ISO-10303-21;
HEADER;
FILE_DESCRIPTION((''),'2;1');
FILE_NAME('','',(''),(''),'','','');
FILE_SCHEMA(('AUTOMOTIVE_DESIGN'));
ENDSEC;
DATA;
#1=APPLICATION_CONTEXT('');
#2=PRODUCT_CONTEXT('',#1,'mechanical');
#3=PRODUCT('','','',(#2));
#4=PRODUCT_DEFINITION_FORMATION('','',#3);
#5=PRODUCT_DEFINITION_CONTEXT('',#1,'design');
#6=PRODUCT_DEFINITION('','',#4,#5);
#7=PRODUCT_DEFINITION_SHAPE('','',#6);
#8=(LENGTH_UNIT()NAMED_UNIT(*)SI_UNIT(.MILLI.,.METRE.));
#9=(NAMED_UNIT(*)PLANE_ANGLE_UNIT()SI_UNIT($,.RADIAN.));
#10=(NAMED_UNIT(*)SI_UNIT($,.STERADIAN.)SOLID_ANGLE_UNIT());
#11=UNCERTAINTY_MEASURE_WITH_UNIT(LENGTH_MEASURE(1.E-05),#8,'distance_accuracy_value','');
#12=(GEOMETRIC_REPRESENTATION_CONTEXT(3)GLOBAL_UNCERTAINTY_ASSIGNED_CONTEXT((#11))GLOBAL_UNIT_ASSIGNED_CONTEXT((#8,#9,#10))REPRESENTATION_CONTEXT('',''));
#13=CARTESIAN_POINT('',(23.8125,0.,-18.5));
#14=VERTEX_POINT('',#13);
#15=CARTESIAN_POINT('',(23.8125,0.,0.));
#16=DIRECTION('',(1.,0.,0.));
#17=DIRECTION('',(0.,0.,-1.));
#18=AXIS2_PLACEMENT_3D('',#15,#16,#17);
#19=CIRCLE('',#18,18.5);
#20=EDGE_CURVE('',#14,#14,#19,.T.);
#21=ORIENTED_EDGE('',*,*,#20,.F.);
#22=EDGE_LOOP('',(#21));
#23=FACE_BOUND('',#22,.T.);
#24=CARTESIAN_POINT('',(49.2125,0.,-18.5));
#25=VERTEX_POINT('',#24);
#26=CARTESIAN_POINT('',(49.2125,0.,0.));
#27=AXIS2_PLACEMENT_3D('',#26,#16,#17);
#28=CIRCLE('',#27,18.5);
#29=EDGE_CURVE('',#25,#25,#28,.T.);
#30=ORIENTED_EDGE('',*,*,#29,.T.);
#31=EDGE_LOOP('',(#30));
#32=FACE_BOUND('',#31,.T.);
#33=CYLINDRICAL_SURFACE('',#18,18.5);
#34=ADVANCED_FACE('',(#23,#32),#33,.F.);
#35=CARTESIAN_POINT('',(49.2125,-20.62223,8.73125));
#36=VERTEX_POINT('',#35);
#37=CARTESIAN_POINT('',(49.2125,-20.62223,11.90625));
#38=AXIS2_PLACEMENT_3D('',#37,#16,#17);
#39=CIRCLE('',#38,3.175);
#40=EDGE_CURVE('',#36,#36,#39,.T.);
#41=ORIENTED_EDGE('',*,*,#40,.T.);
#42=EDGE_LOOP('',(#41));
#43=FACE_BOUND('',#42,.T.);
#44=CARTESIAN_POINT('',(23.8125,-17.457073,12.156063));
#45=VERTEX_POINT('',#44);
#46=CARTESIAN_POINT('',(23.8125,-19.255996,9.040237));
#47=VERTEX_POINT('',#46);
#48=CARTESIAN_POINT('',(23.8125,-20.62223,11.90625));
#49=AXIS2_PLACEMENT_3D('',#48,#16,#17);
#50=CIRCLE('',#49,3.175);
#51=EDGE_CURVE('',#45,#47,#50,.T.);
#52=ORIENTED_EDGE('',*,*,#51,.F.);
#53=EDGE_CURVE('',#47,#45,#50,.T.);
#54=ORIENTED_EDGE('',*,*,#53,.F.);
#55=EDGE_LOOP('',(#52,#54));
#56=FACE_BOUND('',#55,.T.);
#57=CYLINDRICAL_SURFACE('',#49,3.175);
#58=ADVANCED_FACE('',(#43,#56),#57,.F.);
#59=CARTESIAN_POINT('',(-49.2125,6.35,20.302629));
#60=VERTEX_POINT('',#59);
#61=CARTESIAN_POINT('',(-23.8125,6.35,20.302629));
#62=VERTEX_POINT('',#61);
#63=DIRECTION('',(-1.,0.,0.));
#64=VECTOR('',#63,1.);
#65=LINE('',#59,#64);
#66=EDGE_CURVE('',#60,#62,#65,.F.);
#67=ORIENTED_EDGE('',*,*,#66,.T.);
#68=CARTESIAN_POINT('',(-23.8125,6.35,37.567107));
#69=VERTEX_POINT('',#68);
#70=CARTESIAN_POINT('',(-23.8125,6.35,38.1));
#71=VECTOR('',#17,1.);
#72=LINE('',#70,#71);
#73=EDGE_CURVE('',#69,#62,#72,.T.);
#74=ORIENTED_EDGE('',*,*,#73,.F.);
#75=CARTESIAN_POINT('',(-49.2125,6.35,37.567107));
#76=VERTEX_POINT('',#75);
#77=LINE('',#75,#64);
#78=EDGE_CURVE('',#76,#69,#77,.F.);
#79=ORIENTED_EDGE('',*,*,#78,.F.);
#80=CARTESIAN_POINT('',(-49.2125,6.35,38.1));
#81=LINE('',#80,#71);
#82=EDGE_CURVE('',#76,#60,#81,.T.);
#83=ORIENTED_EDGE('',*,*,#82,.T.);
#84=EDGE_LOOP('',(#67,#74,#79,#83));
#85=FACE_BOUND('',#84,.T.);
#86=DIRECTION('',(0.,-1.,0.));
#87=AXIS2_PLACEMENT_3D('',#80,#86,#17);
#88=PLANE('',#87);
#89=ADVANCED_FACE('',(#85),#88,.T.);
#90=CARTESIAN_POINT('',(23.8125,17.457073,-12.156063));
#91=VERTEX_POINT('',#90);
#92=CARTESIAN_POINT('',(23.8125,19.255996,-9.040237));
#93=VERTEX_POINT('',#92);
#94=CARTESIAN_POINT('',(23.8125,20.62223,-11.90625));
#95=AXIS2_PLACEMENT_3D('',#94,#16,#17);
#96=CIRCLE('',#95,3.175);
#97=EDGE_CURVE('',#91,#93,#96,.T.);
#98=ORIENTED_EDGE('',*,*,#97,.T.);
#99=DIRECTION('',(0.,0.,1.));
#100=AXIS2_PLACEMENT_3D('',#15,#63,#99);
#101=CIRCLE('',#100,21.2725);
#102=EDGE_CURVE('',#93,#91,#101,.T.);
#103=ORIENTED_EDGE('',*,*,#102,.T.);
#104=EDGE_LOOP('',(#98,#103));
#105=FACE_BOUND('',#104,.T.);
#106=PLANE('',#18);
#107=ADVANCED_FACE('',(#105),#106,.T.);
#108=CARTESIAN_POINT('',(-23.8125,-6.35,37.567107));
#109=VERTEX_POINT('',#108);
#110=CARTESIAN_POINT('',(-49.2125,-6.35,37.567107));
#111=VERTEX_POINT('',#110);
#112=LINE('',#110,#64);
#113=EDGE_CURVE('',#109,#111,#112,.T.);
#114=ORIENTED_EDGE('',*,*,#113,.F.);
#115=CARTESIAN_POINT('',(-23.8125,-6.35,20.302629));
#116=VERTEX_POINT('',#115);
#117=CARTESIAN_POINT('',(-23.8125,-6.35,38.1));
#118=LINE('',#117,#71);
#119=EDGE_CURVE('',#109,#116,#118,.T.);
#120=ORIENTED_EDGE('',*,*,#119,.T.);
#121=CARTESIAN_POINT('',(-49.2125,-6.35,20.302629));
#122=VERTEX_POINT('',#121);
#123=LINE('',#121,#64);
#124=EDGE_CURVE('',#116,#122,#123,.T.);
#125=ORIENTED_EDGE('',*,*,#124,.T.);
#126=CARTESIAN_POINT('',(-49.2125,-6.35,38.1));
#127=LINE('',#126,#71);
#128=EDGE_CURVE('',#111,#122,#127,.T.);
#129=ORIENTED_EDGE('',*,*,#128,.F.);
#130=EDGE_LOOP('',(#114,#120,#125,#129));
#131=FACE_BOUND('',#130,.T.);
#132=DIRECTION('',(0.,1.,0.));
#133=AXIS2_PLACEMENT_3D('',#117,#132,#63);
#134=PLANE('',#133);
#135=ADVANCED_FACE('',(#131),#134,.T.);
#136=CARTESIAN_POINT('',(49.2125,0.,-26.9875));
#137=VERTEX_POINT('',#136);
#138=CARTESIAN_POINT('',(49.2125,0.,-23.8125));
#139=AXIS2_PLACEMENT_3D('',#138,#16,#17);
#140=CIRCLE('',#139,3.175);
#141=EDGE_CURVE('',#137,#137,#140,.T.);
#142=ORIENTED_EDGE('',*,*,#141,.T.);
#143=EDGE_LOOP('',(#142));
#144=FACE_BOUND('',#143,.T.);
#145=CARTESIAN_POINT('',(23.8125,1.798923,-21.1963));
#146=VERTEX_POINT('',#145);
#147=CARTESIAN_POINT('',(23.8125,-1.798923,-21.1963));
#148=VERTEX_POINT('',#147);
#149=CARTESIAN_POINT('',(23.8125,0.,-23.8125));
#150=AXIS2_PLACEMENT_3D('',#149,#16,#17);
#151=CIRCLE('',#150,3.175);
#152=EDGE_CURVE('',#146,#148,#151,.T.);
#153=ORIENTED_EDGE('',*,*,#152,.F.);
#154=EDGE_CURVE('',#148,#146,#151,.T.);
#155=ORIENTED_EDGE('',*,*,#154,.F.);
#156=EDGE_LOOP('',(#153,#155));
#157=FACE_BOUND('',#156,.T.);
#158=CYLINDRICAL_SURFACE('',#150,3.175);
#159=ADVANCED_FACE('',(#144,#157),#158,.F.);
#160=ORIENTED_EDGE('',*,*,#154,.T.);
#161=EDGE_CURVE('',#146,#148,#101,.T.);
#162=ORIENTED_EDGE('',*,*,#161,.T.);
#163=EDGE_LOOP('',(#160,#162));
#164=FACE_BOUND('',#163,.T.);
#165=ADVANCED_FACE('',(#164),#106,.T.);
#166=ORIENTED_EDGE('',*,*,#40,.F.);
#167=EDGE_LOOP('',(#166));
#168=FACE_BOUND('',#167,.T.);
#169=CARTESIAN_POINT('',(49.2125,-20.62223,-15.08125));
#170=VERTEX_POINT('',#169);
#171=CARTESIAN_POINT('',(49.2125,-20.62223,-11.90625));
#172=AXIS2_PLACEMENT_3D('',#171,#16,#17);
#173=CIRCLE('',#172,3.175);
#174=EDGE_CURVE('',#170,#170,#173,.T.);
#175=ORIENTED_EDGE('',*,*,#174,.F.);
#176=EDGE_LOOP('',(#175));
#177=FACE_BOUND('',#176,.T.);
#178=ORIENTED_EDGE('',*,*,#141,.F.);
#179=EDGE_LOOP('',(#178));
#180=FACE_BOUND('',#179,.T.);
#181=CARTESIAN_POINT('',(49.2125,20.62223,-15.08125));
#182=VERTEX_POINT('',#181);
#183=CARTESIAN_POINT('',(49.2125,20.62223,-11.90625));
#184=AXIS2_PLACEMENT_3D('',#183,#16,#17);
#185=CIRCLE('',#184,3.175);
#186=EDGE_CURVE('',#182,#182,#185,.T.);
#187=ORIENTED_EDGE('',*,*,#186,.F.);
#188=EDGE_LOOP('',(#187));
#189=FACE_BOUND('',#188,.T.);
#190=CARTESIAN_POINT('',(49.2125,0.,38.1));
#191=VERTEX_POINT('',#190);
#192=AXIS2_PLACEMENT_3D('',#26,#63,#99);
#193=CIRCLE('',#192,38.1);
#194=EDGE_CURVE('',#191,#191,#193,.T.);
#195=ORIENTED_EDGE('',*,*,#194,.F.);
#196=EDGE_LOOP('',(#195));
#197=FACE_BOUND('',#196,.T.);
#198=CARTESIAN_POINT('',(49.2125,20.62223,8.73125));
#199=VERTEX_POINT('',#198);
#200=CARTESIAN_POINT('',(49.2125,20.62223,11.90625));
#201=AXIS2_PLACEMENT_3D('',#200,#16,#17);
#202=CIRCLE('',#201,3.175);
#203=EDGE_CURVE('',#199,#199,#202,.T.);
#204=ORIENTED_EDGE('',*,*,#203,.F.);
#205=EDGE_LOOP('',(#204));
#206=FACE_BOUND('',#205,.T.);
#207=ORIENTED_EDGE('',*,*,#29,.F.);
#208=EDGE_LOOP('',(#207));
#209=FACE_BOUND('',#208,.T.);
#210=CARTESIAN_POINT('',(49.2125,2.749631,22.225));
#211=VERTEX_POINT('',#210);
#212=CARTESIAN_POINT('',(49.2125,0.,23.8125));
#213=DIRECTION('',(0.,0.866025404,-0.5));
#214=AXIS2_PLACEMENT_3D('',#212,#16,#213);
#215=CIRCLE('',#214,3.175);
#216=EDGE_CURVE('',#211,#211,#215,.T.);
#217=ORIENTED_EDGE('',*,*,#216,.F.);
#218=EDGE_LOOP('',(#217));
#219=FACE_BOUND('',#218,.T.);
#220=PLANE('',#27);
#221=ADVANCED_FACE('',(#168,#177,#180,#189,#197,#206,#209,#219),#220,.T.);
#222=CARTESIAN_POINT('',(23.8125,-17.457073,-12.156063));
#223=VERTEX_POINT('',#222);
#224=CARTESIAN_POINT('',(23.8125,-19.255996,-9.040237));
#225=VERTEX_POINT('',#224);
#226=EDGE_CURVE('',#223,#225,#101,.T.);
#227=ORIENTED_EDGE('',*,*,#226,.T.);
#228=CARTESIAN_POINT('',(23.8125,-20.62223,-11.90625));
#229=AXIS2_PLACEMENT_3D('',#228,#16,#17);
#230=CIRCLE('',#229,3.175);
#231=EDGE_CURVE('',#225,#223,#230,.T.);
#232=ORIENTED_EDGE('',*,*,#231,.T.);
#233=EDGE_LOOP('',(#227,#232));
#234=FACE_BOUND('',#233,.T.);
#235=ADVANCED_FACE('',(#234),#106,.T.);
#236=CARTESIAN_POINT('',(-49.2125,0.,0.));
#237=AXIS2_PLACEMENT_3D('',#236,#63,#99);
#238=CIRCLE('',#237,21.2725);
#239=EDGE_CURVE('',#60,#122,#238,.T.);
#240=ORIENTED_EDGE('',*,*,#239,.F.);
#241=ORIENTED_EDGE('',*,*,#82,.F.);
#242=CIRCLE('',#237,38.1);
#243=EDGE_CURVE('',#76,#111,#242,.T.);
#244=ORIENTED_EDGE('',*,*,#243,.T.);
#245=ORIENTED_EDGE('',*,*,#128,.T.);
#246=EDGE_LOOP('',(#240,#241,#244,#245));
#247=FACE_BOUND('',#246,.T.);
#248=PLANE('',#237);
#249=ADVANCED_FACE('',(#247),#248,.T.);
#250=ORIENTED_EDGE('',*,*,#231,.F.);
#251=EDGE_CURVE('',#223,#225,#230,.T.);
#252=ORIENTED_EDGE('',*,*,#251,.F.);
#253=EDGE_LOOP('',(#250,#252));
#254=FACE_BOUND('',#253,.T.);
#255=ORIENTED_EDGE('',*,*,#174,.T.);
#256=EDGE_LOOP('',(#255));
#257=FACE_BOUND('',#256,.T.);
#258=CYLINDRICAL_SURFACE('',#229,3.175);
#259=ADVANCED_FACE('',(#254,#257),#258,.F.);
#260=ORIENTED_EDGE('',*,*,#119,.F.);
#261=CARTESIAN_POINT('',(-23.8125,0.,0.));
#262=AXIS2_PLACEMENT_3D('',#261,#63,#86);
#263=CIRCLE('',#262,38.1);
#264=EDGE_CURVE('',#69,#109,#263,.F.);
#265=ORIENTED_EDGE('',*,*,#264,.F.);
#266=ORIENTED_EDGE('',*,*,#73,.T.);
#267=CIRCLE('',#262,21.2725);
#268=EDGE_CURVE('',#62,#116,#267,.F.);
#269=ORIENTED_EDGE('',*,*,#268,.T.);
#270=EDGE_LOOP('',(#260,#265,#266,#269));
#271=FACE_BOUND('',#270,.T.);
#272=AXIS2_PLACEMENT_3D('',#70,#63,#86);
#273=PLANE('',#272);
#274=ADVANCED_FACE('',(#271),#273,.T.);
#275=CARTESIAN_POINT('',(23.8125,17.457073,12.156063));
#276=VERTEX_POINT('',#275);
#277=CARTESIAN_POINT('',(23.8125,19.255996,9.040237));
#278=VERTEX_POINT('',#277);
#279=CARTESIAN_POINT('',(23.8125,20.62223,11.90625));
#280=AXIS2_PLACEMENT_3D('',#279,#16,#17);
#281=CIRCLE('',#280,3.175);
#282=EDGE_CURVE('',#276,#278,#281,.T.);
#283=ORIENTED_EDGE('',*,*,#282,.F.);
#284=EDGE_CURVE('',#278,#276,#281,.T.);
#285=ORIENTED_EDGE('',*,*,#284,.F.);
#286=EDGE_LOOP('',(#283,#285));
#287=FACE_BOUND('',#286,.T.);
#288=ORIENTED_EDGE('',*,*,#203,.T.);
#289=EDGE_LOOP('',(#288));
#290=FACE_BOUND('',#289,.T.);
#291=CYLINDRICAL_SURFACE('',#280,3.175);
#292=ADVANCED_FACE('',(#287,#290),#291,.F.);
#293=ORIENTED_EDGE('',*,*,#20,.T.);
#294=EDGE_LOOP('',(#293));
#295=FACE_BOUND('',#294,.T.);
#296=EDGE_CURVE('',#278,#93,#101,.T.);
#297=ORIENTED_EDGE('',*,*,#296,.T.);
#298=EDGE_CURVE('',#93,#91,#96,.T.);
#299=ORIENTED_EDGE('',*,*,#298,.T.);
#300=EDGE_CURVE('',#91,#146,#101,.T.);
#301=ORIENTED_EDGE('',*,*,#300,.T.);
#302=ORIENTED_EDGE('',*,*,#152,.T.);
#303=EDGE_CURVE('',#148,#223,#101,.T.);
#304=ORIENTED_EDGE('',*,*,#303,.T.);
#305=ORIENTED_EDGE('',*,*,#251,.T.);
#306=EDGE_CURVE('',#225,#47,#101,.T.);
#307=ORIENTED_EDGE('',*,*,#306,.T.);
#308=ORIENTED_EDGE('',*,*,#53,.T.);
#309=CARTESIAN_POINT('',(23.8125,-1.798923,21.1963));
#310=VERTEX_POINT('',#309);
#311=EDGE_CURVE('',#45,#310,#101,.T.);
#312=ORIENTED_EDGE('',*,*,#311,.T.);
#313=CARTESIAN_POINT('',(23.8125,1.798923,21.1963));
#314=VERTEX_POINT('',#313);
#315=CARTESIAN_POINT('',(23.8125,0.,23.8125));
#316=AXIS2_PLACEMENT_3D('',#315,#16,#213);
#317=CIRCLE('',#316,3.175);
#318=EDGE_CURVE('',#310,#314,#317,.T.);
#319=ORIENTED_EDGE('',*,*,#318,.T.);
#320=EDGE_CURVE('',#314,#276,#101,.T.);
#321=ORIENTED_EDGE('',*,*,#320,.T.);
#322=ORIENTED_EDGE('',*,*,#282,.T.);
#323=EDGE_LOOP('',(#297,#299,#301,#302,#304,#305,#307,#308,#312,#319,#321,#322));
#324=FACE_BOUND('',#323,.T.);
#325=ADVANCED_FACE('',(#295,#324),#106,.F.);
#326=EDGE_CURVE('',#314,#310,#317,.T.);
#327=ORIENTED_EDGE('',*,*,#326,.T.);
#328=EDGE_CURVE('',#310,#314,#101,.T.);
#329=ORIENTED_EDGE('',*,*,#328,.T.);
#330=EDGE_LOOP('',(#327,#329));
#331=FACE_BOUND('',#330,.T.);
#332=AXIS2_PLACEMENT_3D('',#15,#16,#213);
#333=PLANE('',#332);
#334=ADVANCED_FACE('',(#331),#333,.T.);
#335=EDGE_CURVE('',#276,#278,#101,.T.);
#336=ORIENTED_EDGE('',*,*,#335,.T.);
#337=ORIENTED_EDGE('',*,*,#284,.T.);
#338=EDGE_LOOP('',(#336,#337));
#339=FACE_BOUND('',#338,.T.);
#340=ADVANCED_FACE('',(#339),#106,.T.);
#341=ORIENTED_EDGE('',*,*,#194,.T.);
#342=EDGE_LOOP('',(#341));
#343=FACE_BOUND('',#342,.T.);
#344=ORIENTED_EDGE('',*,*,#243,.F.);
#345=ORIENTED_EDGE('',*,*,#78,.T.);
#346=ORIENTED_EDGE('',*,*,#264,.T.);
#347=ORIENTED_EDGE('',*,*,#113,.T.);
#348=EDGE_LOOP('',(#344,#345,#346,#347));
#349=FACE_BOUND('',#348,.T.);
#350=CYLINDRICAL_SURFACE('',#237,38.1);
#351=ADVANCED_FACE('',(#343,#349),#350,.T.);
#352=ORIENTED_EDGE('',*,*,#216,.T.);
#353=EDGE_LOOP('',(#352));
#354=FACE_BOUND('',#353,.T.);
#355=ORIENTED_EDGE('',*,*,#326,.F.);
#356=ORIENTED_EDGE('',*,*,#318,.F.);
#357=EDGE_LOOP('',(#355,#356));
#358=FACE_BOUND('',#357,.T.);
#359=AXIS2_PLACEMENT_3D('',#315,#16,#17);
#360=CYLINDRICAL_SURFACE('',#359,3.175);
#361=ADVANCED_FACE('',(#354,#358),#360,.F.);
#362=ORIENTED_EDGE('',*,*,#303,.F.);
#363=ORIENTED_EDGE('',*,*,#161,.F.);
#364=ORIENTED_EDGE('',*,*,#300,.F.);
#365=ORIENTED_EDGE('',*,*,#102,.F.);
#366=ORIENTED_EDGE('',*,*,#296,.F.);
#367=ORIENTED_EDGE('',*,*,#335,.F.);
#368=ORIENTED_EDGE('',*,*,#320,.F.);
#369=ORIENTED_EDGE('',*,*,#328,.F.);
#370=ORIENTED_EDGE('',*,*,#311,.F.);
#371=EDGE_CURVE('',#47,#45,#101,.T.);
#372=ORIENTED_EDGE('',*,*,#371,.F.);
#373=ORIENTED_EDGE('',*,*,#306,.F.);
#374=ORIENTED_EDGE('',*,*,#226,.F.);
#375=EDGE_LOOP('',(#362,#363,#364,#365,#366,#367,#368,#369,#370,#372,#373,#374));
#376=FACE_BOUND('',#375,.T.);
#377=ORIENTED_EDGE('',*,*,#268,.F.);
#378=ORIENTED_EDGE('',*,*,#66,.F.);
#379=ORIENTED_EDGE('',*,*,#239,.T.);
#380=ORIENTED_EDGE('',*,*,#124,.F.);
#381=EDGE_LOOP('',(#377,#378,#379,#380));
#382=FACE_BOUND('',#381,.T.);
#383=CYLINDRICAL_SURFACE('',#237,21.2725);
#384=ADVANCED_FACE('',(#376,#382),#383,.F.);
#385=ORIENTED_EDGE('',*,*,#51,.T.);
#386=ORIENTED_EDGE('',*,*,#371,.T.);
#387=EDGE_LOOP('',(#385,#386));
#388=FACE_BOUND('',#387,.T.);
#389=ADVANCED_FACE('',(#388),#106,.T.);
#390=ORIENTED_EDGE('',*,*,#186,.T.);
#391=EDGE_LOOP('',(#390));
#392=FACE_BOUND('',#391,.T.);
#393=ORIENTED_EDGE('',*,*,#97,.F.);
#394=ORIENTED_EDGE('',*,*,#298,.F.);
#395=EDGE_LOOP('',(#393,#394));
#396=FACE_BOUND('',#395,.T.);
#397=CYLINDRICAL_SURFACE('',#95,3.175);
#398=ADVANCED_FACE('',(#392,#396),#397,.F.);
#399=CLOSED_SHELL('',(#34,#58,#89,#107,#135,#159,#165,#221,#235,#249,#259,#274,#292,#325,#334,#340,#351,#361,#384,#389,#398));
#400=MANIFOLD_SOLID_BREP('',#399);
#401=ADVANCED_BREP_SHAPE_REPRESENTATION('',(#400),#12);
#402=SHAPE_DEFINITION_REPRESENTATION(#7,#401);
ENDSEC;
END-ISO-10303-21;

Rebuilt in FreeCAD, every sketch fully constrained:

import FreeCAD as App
import Part
import Sketcher
Q = App.Units.Quantity

doc = App.newDocument("Part")
body = doc.addObject("PartDesign::Body", "Body")

sketch1 = body.newObject("Sketcher::SketchObject", "Sketch")
sketch1.AttachmentSupport = (doc.getObject("XY_Plane"), [""])
sketch1.MapMode = "FlatFace"
sketch1.addGeometry([
    Part.LineSegment(App.Vector(-49.2125, 38.1, 0), App.Vector(-49.2125, 21.2725, 0)),
    Part.LineSegment(App.Vector(-49.2125, 21.2725, 0), App.Vector(23.8125, 21.2725, 0)),
    Part.LineSegment(App.Vector(23.8125, 21.2725, 0), App.Vector(23.8125, 15.875, 0)),
    Part.LineSegment(App.Vector(23.8125, 15.875, 0), App.Vector(49.2125, 15.875, 0)),
    Part.LineSegment(App.Vector(49.2125, 15.875, 0), App.Vector(49.2125, 38.1, 0)),
    Part.LineSegment(App.Vector(49.2125, 38.1, 0), App.Vector(-49.2125, 38.1, 0)),
], False)
sketch1.addConstraint([
    Sketcher.Constraint("Coincident", 0, 2, 1, 1),
    Sketcher.Constraint("Coincident", 1, 2, 2, 1),
    Sketcher.Constraint("Coincident", 2, 2, 3, 1),
    Sketcher.Constraint("Coincident", 3, 2, 4, 1),
    Sketcher.Constraint("Coincident", 4, 2, 5, 1),
    Sketcher.Constraint("Coincident", 5, 2, 0, 1),
    Sketcher.Constraint("Vertical", 0),
    Sketcher.Constraint("Horizontal", 1),
    Sketcher.Constraint("Vertical", 2),
    Sketcher.Constraint("Horizontal", 3),
    Sketcher.Constraint("Vertical", 4),
    Sketcher.Constraint("Horizontal", 5),
    Sketcher.Constraint("DistanceX", 3, 1, 3, 2, Q("1 in")),
    Sketcher.Constraint("DistanceY", -1, 1, 4, 2, Q("1.5 in")),
    Sketcher.Constraint("DistanceX", 1, 1, 1, 2, Q("2.875 in")),
    Sketcher.Constraint("DistanceY", 4, 1, 4, 2, Q("0.875 in")),
    Sketcher.Constraint("DistanceY", 0, 2, 0, 1, Q("0.6625 in")),
    Sketcher.Constraint("DistanceX", 0, 2, -1, 1, Q("1.9375 in")),
])
revolution = body.newObject("PartDesign::Revolution", "Revolution")
revolution.Profile = sketch1
revolution.ReferenceAxis = (sketch1, ["H_Axis"])
revolution.Angle = 360

sketch2 = body.newObject("Sketcher::SketchObject", "Sketch001")
sketch2.AttachmentSupport = (doc.getObject("YZ_Plane"), [""])
sketch2.MapMode = "FlatFace"
sketch2.AttachmentOffset = App.Placement(App.Vector(0, 0, 1.9375 * 25.4), App.Rotation())
sketch2.addGeometry([
    Part.Circle(App.Vector(-20.62223, 11.90625, 0), App.Vector(0, 0, 1), 3.175),
    Part.Circle(App.Vector(-20.62223, -11.90625, 0), App.Vector(0, 0, 1), 3.175),
    Part.Circle(App.Vector(0, -23.8125, 0), App.Vector(0, 0, 1), 3.175),
    Part.Circle(App.Vector(20.62223, -11.90625, 0), App.Vector(0, 0, 1), 3.175),
    Part.Circle(App.Vector(20.62223, 11.90625, 0), App.Vector(0, 0, 1), 3.175),
    Part.Circle(App.Vector(0, 0, 0), App.Vector(0, 0, 1), 18.5),
], False)
sketch2.addConstraint([
    Sketcher.Constraint("Coincident", 5, 3, -1, 1),
    Sketcher.Constraint("Equal", 0, 1),
    Sketcher.Constraint("Equal", 1, 2),
    Sketcher.Constraint("Equal", 2, 3),
    Sketcher.Constraint("Equal", 3, 4),
    Sketcher.Constraint("Symmetric", 0, 3, 3, 3, -1, 1),
    Sketcher.Constraint("Symmetric", 1, 3, 4, 3, -1, 1),
    Sketcher.Constraint("Symmetric", 1, 3, 3, 3, -2),
    Sketcher.Constraint("PointOnObject", 2, 3, -2),
    Sketcher.Constraint("Diameter", 0, Q("0.25 in")),
    Sketcher.Constraint("Diameter", 5, 37.0),
    Sketcher.Constraint("DistanceY", -1, 1, 0, 3, Q("0.46875 in")),
    Sketcher.Constraint("DistanceY", 2, 3, -1, 1, Q("0.9375 in")),
    Sketcher.Constraint("DistanceX", 0, 3, -1, 1, 20.62223),
])
pocket1 = body.newObject("PartDesign::Pocket", "Pocket")
pocket1.Profile = sketch2
pocket1.Length = Q("1 in")
doc.recompute()

polarpattern = body.newObject("PartDesign::PolarPattern", "PolarPattern")
polarpattern.Originals = [pocket1]
polarpattern.Axis = (doc.getObject("X_Axis"), [""])
polarpattern.Angle = 360
polarpattern.Occurrences = 6
body.Tip = polarpattern

sketch3 = body.newObject("Sketcher::SketchObject", "Sketch002")
sketch3.AttachmentSupport = (doc.getObject("XY_Plane"), [""])
sketch3.MapMode = "FlatFace"
sketch3.addGeometry([
    Part.LineSegment(App.Vector(-49.2125, 6.35, 0), App.Vector(-49.2125, -6.35, 0)),
    Part.LineSegment(App.Vector(-49.2125, -6.35, 0), App.Vector(-23.8125, -6.35, 0)),
    Part.LineSegment(App.Vector(-23.8125, -6.35, 0), App.Vector(-23.8125, 6.35, 0)),
    Part.LineSegment(App.Vector(-23.8125, 6.35, 0), App.Vector(-49.2125, 6.35, 0)),
], False)
sketch3.addConstraint([
    Sketcher.Constraint("Coincident", 0, 2, 1, 1),
    Sketcher.Constraint("Coincident", 1, 2, 2, 1),
    Sketcher.Constraint("Coincident", 2, 2, 3, 1),
    Sketcher.Constraint("Coincident", 3, 2, 0, 1),
    Sketcher.Constraint("Vertical", 0),
    Sketcher.Constraint("Horizontal", 1),
    Sketcher.Constraint("Vertical", 2),
    Sketcher.Constraint("Horizontal", 3),
    Sketcher.Constraint("DistanceX", 1, 1, 1, 2, Q("1 in")),
    Sketcher.Constraint("DistanceY", 0, 2, 0, 1, Q("0.5 in")),
    Sketcher.Constraint("DistanceY", 0, 2, -1, 1, Q("0.25 in")),
    Sketcher.Constraint("DistanceX", 0, 2, -1, 1, Q("1.9375 in")),
])
pocket2 = body.newObject("PartDesign::Pocket", "Pocket001")
pocket2.Profile = sketch3
pocket2.Type = "ThroughAll"
pocket2.Reversed = True

doc.recompute()
